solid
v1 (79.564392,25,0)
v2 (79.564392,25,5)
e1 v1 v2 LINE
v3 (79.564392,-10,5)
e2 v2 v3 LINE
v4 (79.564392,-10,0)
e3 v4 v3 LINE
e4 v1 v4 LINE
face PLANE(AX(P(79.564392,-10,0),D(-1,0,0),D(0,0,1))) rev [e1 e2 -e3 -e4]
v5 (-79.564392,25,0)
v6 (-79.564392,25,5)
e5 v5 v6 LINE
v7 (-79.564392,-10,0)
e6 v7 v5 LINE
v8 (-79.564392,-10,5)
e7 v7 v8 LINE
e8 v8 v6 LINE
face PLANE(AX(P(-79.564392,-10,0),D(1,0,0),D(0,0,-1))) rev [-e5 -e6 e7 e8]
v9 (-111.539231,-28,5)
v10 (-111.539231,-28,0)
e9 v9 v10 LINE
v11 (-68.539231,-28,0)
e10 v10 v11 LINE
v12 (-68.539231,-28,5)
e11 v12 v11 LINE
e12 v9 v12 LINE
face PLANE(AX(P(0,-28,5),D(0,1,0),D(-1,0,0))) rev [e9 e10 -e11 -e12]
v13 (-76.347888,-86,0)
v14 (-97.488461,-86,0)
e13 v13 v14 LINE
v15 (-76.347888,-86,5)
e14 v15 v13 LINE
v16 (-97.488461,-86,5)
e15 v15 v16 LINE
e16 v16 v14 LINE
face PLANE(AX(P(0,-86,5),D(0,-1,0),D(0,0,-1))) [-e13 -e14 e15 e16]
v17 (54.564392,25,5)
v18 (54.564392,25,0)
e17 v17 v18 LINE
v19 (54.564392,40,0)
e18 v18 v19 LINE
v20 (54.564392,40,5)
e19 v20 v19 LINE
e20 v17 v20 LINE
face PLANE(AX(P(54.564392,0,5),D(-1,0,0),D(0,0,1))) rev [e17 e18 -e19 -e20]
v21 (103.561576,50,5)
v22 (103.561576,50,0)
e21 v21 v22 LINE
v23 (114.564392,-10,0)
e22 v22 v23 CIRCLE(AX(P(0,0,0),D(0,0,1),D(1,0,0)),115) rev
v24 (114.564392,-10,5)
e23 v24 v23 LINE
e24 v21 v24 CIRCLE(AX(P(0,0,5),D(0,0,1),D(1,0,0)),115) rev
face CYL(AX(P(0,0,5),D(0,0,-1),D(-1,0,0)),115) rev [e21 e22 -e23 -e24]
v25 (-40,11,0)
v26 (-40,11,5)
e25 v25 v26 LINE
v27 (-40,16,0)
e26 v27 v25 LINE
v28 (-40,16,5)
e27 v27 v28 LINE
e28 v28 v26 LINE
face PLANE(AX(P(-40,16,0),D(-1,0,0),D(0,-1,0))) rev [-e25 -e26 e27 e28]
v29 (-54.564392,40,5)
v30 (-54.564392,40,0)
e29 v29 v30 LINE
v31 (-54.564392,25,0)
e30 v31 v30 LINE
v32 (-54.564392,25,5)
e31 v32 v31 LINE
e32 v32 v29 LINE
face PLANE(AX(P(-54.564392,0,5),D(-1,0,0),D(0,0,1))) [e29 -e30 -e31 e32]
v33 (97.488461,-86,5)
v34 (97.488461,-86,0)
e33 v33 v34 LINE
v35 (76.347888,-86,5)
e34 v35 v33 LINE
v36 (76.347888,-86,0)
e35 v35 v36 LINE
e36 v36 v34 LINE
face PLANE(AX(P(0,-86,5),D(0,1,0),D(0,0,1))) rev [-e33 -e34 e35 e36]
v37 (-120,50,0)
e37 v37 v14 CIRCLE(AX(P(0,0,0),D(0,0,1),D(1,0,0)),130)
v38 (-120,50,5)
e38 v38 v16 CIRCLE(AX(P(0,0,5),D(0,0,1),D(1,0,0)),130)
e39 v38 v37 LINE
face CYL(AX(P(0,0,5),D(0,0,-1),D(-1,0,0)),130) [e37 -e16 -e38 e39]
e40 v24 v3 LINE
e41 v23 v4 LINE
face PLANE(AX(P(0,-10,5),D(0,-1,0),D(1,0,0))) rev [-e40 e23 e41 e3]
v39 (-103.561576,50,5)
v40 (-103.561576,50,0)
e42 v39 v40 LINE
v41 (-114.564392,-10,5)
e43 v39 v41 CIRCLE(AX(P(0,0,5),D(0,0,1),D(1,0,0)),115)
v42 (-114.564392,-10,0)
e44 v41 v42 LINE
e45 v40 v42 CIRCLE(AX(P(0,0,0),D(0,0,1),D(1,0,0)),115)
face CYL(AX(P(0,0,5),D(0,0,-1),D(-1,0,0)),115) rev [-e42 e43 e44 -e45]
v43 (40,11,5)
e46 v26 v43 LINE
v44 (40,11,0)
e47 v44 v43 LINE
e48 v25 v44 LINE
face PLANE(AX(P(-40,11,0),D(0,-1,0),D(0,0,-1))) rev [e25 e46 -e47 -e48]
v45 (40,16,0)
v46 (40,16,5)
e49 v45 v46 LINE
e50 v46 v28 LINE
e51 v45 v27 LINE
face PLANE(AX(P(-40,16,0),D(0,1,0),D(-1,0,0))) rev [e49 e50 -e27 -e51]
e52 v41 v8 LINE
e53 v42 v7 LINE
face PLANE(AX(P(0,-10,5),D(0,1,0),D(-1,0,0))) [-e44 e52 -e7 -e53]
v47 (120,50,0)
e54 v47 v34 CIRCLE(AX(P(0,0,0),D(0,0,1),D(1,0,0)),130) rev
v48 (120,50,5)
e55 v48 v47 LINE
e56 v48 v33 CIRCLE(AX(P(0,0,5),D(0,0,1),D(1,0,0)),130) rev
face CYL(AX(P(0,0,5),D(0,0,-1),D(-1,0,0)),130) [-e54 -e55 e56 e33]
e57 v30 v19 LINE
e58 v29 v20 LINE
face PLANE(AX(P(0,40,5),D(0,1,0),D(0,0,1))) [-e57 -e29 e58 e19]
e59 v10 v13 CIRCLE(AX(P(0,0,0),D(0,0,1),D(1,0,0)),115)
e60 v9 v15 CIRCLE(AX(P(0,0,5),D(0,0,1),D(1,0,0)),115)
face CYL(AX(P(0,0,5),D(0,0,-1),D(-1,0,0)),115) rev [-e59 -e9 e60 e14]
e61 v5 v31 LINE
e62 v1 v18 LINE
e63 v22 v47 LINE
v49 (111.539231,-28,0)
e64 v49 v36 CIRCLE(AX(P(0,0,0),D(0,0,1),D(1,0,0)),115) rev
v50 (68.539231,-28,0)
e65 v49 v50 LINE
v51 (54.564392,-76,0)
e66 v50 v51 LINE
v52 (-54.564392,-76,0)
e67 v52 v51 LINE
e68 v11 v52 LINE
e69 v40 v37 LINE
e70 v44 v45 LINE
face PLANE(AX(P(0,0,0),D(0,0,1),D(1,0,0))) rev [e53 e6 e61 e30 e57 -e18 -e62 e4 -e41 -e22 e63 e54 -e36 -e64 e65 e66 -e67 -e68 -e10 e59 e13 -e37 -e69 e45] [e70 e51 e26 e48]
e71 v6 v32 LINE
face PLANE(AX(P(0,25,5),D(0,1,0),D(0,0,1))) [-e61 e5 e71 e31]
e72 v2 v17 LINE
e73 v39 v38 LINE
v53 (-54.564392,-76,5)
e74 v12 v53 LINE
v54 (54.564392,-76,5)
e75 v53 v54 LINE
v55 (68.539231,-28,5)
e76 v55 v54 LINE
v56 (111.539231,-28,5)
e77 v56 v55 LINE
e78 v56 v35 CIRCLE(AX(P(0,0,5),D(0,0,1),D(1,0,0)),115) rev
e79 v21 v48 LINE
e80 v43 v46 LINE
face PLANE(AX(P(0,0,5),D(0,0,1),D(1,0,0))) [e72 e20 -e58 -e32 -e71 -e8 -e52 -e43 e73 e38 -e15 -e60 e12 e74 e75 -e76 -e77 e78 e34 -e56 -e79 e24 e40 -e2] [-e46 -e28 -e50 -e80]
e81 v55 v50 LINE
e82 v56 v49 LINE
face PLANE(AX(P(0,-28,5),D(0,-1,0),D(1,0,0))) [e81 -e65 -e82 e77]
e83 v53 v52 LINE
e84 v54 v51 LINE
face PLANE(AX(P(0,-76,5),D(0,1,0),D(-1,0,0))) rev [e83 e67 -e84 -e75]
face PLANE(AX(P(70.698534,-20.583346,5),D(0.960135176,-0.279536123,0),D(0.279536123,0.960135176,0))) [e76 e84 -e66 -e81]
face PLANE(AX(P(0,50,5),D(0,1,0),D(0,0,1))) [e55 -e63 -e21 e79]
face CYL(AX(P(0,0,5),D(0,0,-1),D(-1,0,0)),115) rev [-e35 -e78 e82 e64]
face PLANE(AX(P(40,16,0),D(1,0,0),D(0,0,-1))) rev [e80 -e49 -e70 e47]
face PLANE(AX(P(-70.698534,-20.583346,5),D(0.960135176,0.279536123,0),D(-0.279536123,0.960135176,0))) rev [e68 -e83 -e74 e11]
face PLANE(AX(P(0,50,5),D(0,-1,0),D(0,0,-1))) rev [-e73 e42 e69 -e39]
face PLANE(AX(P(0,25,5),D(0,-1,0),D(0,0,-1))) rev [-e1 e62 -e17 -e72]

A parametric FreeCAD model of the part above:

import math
import FreeCAD as App
import Part
import Sketcher

V = App.Vector
Q = App.Units.Quantity

doc = App.newDocument("Part")
body = doc.addObject("PartDesign::Body", "Body")

# Sketch on XY plane
sketch1 = body.newObject("Sketcher::SketchObject", "Sketch")
sketch1.AttachmentSupport = (doc.getObject("XY_Plane"), [""])
sketch1.MapMode = "FlatFace"
sketch1.addGeometry(Part.ArcOfCircle(Part.Circle(V(0, 0, 0), V(0, 0, 1), 115), math.radians(-166), math.radians(-132)), False)
sketch1.addGeometry(Part.LineSegment(V(-112, -28, 0), V(-69, -28, 0)), False)
sketch1.addGeometry(Part.LineSegment(V(-69, -28, 0), V(-55, -76, 0)), False)
sketch1.addGeometry(Part.LineSegment(V(-55, -76, 0), V(55, -76, 0)), False)
sketch1.addGeometry(Part.LineSegment(V(55, -76, 0), V(69, -28, 0)), False)
sketch1.addGeometry(Part.LineSegment(V(69, -28, 0), V(112, -28, 0)), False)
sketch1.addGeometry(Part.ArcOfCircle(Part.Circle(V(0, 0, 0), V(0, 0, 1), 115), math.radians(-48), math.radians(-14)), False)
sketch1.addGeometry(Part.LineSegment(V(76, -86, 0), V(97, -86, 0)), False)
sketch1.addGeometry(Part.ArcOfCircle(Part.Circle(V(0, 0, 0), V(0, 0, 1), 130), math.radians(-41), math.radians(23)), False)
sketch1.addGeometry(Part.LineSegment(V(120, 50, 0), V(104, 50, 0)), False)
sketch1.addGeometry(Part.ArcOfCircle(Part.Circle(V(0, 0, 0), V(0, 0, 1), 115), math.radians(-5), math.radians(26)), False)
sketch1.addGeometry(Part.LineSegment(V(115, -10, 0), V(90, -10, 0)), False)
sketch1.addGeometry(Part.LineSegment(V(90, -10, 0), V(90, 25, 0)), False)
sketch1.addGeometry(Part.LineSegment(V(90, 25, 0), V(55, 25, 0)), False)
sketch1.addGeometry(Part.LineSegment(V(55, 25, 0), V(55, 40, 0)), False)
sketch1.addGeometry(Part.LineSegment(V(55, 40, 0), V(-55, 40, 0)), False)
sketch1.addGeometry(Part.LineSegment(V(-55, 40, 0), V(-55, 25, 0)), False)
sketch1.addGeometry(Part.LineSegment(V(-55, 25, 0), V(-90, 25, 0)), False)
sketch1.addGeometry(Part.LineSegment(V(-90, 25, 0), V(-90, -10, 0)), False)
sketch1.addGeometry(Part.LineSegment(V(-90, -10, 0), V(-115, -10, 0)), False)
sketch1.addGeometry(Part.ArcOfCircle(Part.Circle(V(0, 0, 0), V(0, 0, 1), 115), math.radians(154), math.radians(185)), False)
sketch1.addGeometry(Part.LineSegment(V(-104, 50, 0), V(-120, 50, 0)), False)
sketch1.addGeometry(Part.ArcOfCircle(Part.Circle(V(0, 0, 0), V(0, 0, 1), 130), math.radians(157), math.radians(221)), False)
sketch1.addGeometry(Part.LineSegment(V(-97, -86, 0), V(-76, -86, 0)), False)
sketch1.addConstraint(Sketcher.Constraint("Coincident", 0, 1, 1, 1))
sketch1.addConstraint(Sketcher.Constraint("Coincident", 1, 2, 2, 1))
sketch1.addConstraint(Sketcher.Constraint("Coincident", 2, 2, 3, 1))
sketch1.addConstraint(Sketcher.Constraint("Coincident", 3, 2, 4, 1))
sketch1.addConstraint(Sketcher.Constraint("Coincident", 4, 2, 5, 1))
sketch1.addConstraint(Sketcher.Constraint("Coincident", 5, 2, 6, 2))
sketch1.addConstraint(Sketcher.Constraint("Coincident", 6, 1, 7, 1))
sketch1.addConstraint(Sketcher.Constraint("Coincident", 7, 2, 8, 1))
sketch1.addConstraint(Sketcher.Constraint("Coincident", 8, 2, 9, 1))
sketch1.addConstraint(Sketcher.Constraint("Coincident", 9, 2, 10, 2))
sketch1.addConstraint(Sketcher.Constraint("Coincident", 10, 1, 11, 1))
sketch1.addConstraint(Sketcher.Constraint("Coincident", 11, 2, 12, 1))
sketch1.addConstraint(Sketcher.Constraint("Coincident", 12, 2, 13, 1))
sketch1.addConstraint(Sketcher.Constraint("Coincident", 13, 2, 14, 1))
sketch1.addConstraint(Sketcher.Constraint("Coincident", 14, 2, 15, 1))
sketch1.addConstraint(Sketcher.Constraint("Coincident", 15, 2, 16, 1))
sketch1.addConstraint(Sketcher.Constraint("Coincident", 16, 2, 17, 1))
sketch1.addConstraint(Sketcher.Constraint("Coincident", 17, 2, 18, 1))
sketch1.addConstraint(Sketcher.Constraint("Coincident", 18, 2, 19, 1))
sketch1.addConstraint(Sketcher.Constraint("Coincident", 19, 2, 20, 2))
sketch1.addConstraint(Sketcher.Constraint("Coincident", 20, 1, 21, 1))
sketch1.addConstraint(Sketcher.Constraint("Coincident", 21, 2, 22, 1))
sketch1.addConstraint(Sketcher.Constraint("Coincident", 22, 2, 23, 1))
sketch1.addConstraint(Sketcher.Constraint("Coincident", 23, 2, 0, 2))
sketch1.addConstraint(Sketcher.Constraint("Horizontal", 1))
sketch1.addConstraint(Sketcher.Constraint("Horizontal", 3))
sketch1.addConstraint(Sketcher.Constraint("Horizontal", 5))
sketch1.addConstraint(Sketcher.Constraint("Horizontal", 7))
sketch1.addConstraint(Sketcher.Constraint("Horizontal", 9))
sketch1.addConstraint(Sketcher.Constraint("Horizontal", 11))
sketch1.addConstraint(Sketcher.Constraint("Vertical", 12))
sketch1.addConstraint(Sketcher.Constraint("Horizontal", 13))
sketch1.addConstraint(Sketcher.Constraint("Vertical", 14))
sketch1.addConstraint(Sketcher.Constraint("Horizontal", 15))
sketch1.addConstraint(Sketcher.Constraint("Vertical", 16))
sketch1.addConstraint(Sketcher.Constraint("Horizontal", 17))
sketch1.addConstraint(Sketcher.Constraint("Vertical", 18))
sketch1.addConstraint(Sketcher.Constraint("Horizontal", 19))
sketch1.addConstraint(Sketcher.Constraint("Horizontal", 21))
sketch1.addConstraint(Sketcher.Constraint("Horizontal", 23))
sketch1.addConstraint(Sketcher.Constraint("Coincident", 0, 3, -1, 1))
sketch1.addConstraint(Sketcher.Constraint("Coincident", 6, 3, -1, 1))
sketch1.addConstraint(Sketcher.Constraint("Coincident", 8, 3, -1, 1))
sketch1.addConstraint(Sketcher.Constraint("Coincident", 10, 3, -1, 1))
sketch1.addConstraint(Sketcher.Constraint("Coincident", 20, 3, -1, 1))
sketch1.addConstraint(Sketcher.Constraint("Coincident", 22, 3, -1, 1))
sketch1.addConstraint(Sketcher.Constraint("Equal", 0, 6))
sketch1.addConstraint(Sketcher.Constraint("Equal", 6, 10))
sketch1.addConstraint(Sketcher.Constraint("Equal", 10, 20))
sketch1.addConstraint(Sketcher.Constraint("Equal", 8, 22))
sketch1.addConstraint(Sketcher.Constraint("Symmetric", 1, 2, 4, 2, -2))
sketch1.addConstraint(Sketcher.Constraint("Symmetric", 13, 2, 16, 2, -2))
sketch1.addConstraint(Sketcher.Constraint("Symmetric", 11, 2, 18, 2, -2))
sketch1.addConstraint(Sketcher.Constraint("Horizontal", 9, 2, 20, 1))
sketch1.addConstraint(Sketcher.Constraint("Horizontal", 7, 2, 22, 2))
sketch1.addConstraint(Sketcher.Constraint("Vertical", 3, 2, 13, 2))
sketch1.addConstraint(Sketcher.Constraint("Vertical", 2, 2, 15, 2))
sketch1.addConstraint(Sketcher.Constraint("Equal", 17, 12))
sketch1.addConstraint(Sketcher.Constraint("Radius", 0, Q("115 mm")))
sketch1.addConstraint(Sketcher.Constraint("Radius", 8, Q("130 mm")))
sketch1.addConstraint(Sketcher.Constraint("DistanceX", 1, 1, 1, 2, Q("43 mm")))
sketch1.addConstraint(Sketcher.Constraint("DistanceX", 11, 2, 11, 1, Q("25 mm")))
sketch1.addConstraint(Sketcher.Constraint("DistanceX", 13, 2, 13, 1, Q("35 mm")))
sketch1.addConstraint(Sketcher.Constraint("DistanceY", 14, 1, 14, 2, Q("15 mm")))
sketch1.addConstraint(Sketcher.Constraint("DistanceY", 0, 1, -1, 1, Q("28 mm")))
sketch1.addConstraint(Sketcher.Constraint("DistanceY", 2, 2, -1, 1, Q("76 mm")))
sketch1.addConstraint(Sketcher.Constraint("DistanceY", 6, 1, -1, 1, Q("86 mm")))
sketch1.addConstraint(Sketcher.Constraint("DistanceX", -1, 1, 8, 2, Q("120 mm")))
sketch1.addConstraint(Sketcher.Constraint("DistanceY", 10, 1, -1, 1, Q("10 mm")))
pad1 = body.newObject("PartDesign::Pad", "Pad")
pad1.Profile = sketch1
pad1.Length = 5

# Sketch on XY plane
sketch2 = body.newObject("Sketcher::SketchObject", "Sketch001")
sketch2.AttachmentSupport = (doc.getObject("XY_Plane"), [""])
sketch2.MapMode = "FlatFace"
sketch2.AttachmentOffset = App.Placement(V(0, 0, 5), App.Rotation())
sketch2.addGeometry(Part.LineSegment(V(90, 25, 0), V(80, 25, 0)), False)
sketch2.addGeometry(Part.ArcOfCircle(Part.Circle(V(80, 15, 0), V(0, 0, 1), 10), math.radians(0), math.radians(90)), False)
sketch2.addGeometry(Part.LineSegment(V(90, 15, 0), V(90, 25, 0)), False)
sketch2.addConstraint(Sketcher.Constraint("Tangent", 0, 2, 1, 2))
sketch2.addConstraint(Sketcher.Constraint("Tangent", 1, 1, 2, 1))
sketch2.addConstraint(Sketcher.Constraint("Coincident", 2, 2, 0, 1))
sketch2.addConstraint(Sketcher.Constraint("Horizontal", 0))
sketch2.addConstraint(Sketcher.Constraint("Vertical", 2))
sketch2.addConstraint(Sketcher.Constraint("Radius", 1, Q("10 mm")))
sketch2.addConstraint(Sketcher.Constraint("DistanceY", -1, 1, 1, 3, Q("15 mm")))
sketch2.addConstraint(Sketcher.Constraint("DistanceX", -1, 1, 1, 3, Q("79.564392 mm")))
pocket1 = body.newObject("PartDesign::Pocket", "Pocket")
pocket1.Profile = sketch2
pocket1.Type = "ThroughAll"

# Sketch on XY plane
sketch3 = body.newObject("Sketcher::SketchObject", "Sketch002")
sketch3.AttachmentSupport = (doc.getObject("XY_Plane"), [""])
sketch3.MapMode = "FlatFace"
sketch3.AttachmentOffset = App.Placement(V(0, 0, 5), App.Rotation())
sketch3.addGeometry(Part.ArcOfCircle(Part.Circle(V(-80, 15, 0), V(0, 0, 1), 10), math.radians(90), math.radians(180)), False)
sketch3.addGeometry(Part.LineSegment(V(-80, 25, 0), V(-90, 25, 0)), False)
sketch3.addGeometry(Part.LineSegment(V(-90, 25, 0), V(-90, 15, 0)), False)
sketch3.addConstraint(Sketcher.Constraint("Tangent", 0, 1, 1, 1))
sketch3.addConstraint(Sketcher.Constraint("Coincident", 1, 2, 2, 1))
sketch3.addConstraint(Sketcher.Constraint("Tangent", 2, 2, 0, 2))
sketch3.addConstraint(Sketcher.Constraint("Horizontal", 1))
sketch3.addConstraint(Sketcher.Constraint("Vertical", 2))
sketch3.addConstraint(Sketcher.Constraint("Radius", 0, Q("10 mm")))
sketch3.addConstraint(Sketcher.Constraint("DistanceY", -1, 1, 0, 3, Q("15 mm")))
sketch3.addConstraint(Sketcher.Constraint("DistanceX", 0, 3, -1, 1, Q("79.564392 mm")))
pocket2 = body.newObject("PartDesign::Pocket", "Pocket001")
pocket2.Profile = sketch3
pocket2.Type = "ThroughAll"

# Sketch on XY plane
sketch4 = body.newObject("Sketcher::SketchObject", "Sketch003")
sketch4.AttachmentSupport = (doc.getObject("XY_Plane"), [""])
sketch4.MapMode = "FlatFace"
sketch4.AttachmentOffset = App.Placement(V(0, 0, 5), App.Rotation())
sketch4.addGeometry(Part.LineSegment(V(-90, 32, 0), V(-90, -10, 0)), False)
sketch4.addGeometry(Part.LineSegment(V(-90, -10, 0), V(-80, -10, 0)), False)
sketch4.addGeometry(Part.LineSegment(V(-80, -10, 0), V(-80, 32, 0)), False)
sketch4.addGeometry(Part.LineSegment(V(-80, 32, 0), V(-90, 32, 0)), False)
sketch4.addGeometry(Part.LineSegment(V(80, 32, 0), V(80, -10, 0)), False)
sketch4.addGeometry(Part.LineSegment(V(80, -10, 0), V(90, -10, 0)), False)
sketch4.addGeometry(Part.LineSegment(V(90, -10, 0), V(90, 32, 0)), False)
sketch4.addGeometry(Part.LineSegment(V(90, 32, 0), V(80, 32, 0)), False)
sketch4.addConstraint(Sketcher.Constraint("Coincident", 0, 2, 1, 1))
sketch4.addConstraint(Sketcher.Constraint("Coincident", 1, 2, 2, 1))
sketch4.addConstraint(Sketcher.Constraint("Coincident", 2, 2, 3, 1))
sketch4.addConstraint(Sketcher.Constraint("Coincident", 3, 2, 0, 1))
sketch4.addConstraint(Sketcher.Constraint("Coincident", 4, 2, 5, 1))
sketch4.addConstraint(Sketcher.Constraint("Coincident", 5, 2, 6, 1))
sketch4.addConstraint(Sketcher.Constraint("Coincident", 6, 2, 7, 1))
sketch4.addConstraint(Sketcher.Constraint("Coincident", 7, 2, 4, 1))
sketch4.addConstraint(Sketcher.Constraint("Vertical", 0))
sketch4.addConstraint(Sketcher.Constraint("Horizontal", 1))
sketch4.addConstraint(Sketcher.Constraint("Vertical", 2))
sketch4.addConstraint(Sketcher.Constraint("Horizontal", 3))
sketch4.addConstraint(Sketcher.Constraint("Vertical", 4))
sketch4.addConstraint(Sketcher.Constraint("Horizontal", 5))
sketch4.addConstraint(Sketcher.Constraint("Vertical", 6))
sketch4.addConstraint(Sketcher.Constraint("Horizontal", 7))
sketch4.addConstraint(Sketcher.Constraint("Symmetric", 1, 2, 4, 2, -2))
sketch4.addConstraint(Sketcher.Constraint("Symmetric", 3, 2, 6, 2, -2))
sketch4.addConstraint(Sketcher.Constraint("DistanceX", 1, 1, 1, 2, Q("10 mm")))
sketch4.addConstraint(Sketcher.Constraint("DistanceY", 0, 2, -1, 1, Q("10 mm")))
sketch4.addConstraint(Sketcher.Constraint("DistanceY", 0, 2, 0, 1, Q("42.44997 mm")))
sketch4.addConstraint(Sketcher.Constraint("DistanceX", 0, 2, -1, 1, Q("89.564392 mm")))
pocket3 = body.newObject("PartDesign::Pocket", "Pocket002")
pocket3.Profile = sketch4
pocket3.Type = "ThroughAll"

# Sketch on XY plane
sketch5 = body.newObject("Sketcher::SketchObject", "Sketch004")
sketch5.AttachmentSupport = (doc.getObject("XY_Plane"), [""])
sketch5.MapMode = "FlatFace"
sketch5.AttachmentOffset = App.Placement(V(0, 0, 5), App.Rotation())
sketch5.addGeometry(Part.LineSegment(V(-40, 16, 0), V(-40, 11, 0)), False)
sketch5.addGeometry(Part.LineSegment(V(-40, 11, 0), V(40, 11, 0)), False)
sketch5.addGeometry(Part.LineSegment(V(40, 11, 0), V(40, 16, 0)), False)
sketch5.addGeometry(Part.LineSegment(V(40, 16, 0), V(-40, 16, 0)), False)
sketch5.addConstraint(Sketcher.Constraint("Coincident", 0, 2, 1, 1))
sketch5.addConstraint(Sketcher.Constraint("Coincident", 1, 2, 2, 1))
sketch5.addConstraint(Sketcher.Constraint("Coincident", 2, 2, 3, 1))
sketch5.addConstraint(Sketcher.Constraint("Coincident", 3, 2, 0, 1))
sketch5.addConstraint(Sketcher.Constraint("Vertical", 0))
sketch5.addConstraint(Sketcher.Constraint("Horizontal", 1))
sketch5.addConstraint(Sketcher.Constraint("Vertical", 2))
sketch5.addConstraint(Sketcher.Constraint("Horizontal", 3))
sketch5.addConstraint(Sketcher.Constraint("DistanceX", 1, 1, 1, 2, Q("80 mm")))
sketch5.addConstraint(Sketcher.Constraint("DistanceY", 0, 2, 0, 1, Q("5 mm")))
sketch5.addConstraint(Sketcher.Constraint("DistanceX", 0, 2, -1, 1, Q("40 mm")))
sketch5.addConstraint(Sketcher.Constraint("DistanceY", -1, 1, 0, 2, Q("11 mm")))
pocket4 = body.newObject("PartDesign::Pocket", "Pocket003")
pocket4.Profile = sketch5
pocket4.Length = 5

doc.recompute()
